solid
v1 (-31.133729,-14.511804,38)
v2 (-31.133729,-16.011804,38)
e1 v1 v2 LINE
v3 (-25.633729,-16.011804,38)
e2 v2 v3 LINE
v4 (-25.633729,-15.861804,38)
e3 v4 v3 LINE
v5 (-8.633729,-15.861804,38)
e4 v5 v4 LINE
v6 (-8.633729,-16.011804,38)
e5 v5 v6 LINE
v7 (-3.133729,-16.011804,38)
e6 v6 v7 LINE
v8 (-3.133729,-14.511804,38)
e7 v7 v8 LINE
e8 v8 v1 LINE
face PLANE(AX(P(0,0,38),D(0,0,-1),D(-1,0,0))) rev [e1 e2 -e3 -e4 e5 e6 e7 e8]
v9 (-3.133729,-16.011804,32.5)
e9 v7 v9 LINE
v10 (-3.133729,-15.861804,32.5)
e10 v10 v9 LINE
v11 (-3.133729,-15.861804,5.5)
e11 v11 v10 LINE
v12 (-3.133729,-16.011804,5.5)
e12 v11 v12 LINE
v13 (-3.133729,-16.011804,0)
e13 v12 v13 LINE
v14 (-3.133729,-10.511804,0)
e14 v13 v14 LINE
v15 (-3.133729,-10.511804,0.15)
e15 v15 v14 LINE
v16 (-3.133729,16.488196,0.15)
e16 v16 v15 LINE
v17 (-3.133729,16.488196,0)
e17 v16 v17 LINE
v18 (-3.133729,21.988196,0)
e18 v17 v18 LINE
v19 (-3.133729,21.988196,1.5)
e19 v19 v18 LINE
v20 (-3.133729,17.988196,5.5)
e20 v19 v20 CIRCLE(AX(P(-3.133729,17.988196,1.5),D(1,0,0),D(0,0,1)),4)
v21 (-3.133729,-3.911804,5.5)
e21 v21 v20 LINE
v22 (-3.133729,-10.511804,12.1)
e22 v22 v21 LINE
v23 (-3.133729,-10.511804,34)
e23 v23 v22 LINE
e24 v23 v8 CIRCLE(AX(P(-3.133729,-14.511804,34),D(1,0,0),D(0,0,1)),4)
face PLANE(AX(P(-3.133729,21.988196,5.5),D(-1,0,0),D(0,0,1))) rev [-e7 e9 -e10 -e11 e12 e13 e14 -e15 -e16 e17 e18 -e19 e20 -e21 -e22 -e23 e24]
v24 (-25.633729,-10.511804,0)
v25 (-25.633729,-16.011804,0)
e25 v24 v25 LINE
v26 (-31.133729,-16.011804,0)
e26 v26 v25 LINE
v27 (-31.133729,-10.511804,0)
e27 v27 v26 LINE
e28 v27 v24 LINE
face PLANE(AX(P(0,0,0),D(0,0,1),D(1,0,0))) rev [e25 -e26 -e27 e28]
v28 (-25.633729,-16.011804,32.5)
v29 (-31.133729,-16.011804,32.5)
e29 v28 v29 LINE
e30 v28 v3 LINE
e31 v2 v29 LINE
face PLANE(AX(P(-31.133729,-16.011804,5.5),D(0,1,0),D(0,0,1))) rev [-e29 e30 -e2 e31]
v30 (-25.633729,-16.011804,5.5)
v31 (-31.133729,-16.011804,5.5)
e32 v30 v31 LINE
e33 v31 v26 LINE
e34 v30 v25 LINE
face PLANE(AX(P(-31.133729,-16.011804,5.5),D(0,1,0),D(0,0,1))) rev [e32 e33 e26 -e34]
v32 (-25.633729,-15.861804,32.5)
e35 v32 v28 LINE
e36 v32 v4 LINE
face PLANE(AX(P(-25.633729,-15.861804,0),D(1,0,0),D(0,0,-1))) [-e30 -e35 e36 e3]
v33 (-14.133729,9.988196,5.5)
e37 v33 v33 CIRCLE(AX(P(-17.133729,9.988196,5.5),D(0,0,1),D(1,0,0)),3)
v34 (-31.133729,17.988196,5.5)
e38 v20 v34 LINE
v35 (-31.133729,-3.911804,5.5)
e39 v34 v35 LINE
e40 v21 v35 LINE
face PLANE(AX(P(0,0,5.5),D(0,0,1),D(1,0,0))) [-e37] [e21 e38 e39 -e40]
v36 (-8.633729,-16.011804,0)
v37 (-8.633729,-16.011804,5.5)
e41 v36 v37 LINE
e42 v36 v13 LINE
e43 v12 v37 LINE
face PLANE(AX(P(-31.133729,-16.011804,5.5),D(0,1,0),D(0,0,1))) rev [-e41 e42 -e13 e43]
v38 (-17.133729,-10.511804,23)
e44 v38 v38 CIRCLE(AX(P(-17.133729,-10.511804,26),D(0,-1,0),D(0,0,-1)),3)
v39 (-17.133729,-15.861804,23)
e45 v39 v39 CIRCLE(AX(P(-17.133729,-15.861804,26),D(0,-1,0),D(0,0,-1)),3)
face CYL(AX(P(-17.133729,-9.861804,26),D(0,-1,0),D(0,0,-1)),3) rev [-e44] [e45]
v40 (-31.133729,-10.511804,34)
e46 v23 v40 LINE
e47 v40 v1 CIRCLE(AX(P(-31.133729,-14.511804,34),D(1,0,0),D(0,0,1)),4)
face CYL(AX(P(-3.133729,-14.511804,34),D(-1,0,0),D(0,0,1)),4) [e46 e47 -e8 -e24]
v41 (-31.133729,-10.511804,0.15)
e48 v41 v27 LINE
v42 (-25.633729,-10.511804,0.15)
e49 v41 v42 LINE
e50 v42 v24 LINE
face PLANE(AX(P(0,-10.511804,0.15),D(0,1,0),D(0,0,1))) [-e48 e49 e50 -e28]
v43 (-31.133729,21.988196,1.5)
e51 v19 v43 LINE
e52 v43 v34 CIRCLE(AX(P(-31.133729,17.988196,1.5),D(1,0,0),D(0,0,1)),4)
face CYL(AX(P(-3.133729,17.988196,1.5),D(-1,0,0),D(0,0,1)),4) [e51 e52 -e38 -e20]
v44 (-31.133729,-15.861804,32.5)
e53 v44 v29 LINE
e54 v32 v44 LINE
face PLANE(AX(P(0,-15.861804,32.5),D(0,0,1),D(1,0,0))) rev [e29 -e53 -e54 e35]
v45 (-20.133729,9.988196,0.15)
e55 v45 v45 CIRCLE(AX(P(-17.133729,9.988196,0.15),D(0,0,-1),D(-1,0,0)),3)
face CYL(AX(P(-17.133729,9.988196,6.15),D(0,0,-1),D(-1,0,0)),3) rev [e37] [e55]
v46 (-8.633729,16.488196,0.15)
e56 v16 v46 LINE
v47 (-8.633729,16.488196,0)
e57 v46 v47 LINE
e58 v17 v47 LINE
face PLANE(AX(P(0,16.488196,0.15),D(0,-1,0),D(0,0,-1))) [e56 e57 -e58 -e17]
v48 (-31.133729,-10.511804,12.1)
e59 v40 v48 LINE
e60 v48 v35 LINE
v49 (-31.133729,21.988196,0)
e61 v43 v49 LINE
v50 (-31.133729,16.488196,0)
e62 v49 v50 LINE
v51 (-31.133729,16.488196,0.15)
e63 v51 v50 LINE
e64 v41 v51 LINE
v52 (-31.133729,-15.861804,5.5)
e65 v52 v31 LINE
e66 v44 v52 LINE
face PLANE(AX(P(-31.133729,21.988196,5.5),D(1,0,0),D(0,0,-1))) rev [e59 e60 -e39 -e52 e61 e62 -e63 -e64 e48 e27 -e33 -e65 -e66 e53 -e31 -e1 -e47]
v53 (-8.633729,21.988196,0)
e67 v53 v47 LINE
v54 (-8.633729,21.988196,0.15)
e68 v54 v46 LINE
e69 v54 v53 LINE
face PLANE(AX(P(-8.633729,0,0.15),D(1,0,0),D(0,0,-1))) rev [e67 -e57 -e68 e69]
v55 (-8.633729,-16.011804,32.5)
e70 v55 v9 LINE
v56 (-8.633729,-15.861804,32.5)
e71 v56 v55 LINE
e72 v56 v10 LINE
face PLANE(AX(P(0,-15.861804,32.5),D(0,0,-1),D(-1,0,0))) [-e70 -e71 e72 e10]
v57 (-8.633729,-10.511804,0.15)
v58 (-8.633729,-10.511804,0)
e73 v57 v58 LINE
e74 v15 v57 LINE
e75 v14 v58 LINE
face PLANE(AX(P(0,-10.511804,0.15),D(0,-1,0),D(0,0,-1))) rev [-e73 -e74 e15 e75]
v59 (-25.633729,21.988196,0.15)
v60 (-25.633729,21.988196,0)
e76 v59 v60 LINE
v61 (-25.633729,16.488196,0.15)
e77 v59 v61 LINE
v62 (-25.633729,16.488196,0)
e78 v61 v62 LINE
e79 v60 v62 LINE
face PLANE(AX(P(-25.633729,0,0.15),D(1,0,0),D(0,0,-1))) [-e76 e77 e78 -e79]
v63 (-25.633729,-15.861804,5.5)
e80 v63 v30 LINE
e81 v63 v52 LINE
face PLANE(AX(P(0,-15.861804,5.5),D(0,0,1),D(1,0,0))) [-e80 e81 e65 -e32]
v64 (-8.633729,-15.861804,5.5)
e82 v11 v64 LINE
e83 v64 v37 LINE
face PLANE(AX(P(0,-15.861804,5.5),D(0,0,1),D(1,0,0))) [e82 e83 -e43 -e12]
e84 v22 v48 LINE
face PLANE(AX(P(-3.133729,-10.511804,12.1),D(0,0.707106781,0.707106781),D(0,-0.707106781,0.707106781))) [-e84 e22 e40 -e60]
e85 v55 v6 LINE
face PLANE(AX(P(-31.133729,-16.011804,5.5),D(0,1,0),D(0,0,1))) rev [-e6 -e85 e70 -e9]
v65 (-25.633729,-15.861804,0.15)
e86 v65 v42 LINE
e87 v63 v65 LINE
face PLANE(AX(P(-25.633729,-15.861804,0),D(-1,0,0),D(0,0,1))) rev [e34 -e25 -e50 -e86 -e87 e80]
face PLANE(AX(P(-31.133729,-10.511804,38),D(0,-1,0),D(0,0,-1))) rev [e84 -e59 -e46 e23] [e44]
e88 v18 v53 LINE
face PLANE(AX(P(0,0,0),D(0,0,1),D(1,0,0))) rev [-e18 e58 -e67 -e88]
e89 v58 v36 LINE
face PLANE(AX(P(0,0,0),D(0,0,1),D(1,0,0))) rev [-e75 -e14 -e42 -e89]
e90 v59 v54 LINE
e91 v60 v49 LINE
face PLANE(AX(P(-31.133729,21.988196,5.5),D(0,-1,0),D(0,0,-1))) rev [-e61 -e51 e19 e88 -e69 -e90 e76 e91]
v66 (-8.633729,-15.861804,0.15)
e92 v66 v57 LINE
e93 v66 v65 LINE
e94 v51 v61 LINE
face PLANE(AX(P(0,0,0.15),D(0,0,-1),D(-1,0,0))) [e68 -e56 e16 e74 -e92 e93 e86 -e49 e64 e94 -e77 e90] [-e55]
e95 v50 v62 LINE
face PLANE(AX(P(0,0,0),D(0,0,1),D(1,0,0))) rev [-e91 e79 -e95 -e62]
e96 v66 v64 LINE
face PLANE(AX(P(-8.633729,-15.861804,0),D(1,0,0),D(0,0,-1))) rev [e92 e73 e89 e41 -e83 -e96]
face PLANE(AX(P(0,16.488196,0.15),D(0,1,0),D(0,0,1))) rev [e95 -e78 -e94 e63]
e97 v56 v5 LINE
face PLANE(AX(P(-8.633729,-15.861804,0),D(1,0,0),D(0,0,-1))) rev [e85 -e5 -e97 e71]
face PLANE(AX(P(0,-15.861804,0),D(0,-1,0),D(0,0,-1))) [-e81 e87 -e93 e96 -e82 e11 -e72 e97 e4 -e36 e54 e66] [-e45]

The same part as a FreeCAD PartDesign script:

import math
import FreeCAD as App
import Part
import Sketcher
from FreeCAD import Vector
Q = App.Units.Quantity

doc = App.newDocument("Part")
body = doc.addObject("PartDesign::Body", "Body")

# Sketch on XY plane
sketch1 = doc.addObject("Sketcher::SketchObject", "Sketch")
body.addObject(sketch1)
sketch1.AttachmentSupport = (doc.XY_Plane, [""])
sketch1.MapMode = "FlatFace"
sketch1.addGeometry(Part.LineSegment(Vector(-31.133729, 21.988196, 0), Vector(-31.133729, -16.011804, 0)), False)
sketch1.addGeometry(Part.LineSegment(Vector(-31.133729, -16.011804, 0), Vector(-3.133729, -16.011804, 0)), False)
sketch1.addGeometry(Part.LineSegment(Vector(-3.133729, -16.011804, 0), Vector(-3.133729, 21.988196, 0)), False)
sketch1.addGeometry(Part.LineSegment(Vector(-3.133729, 21.988196, 0), Vector(-31.133729, 21.988196, 0)), False)
sketch1.addConstraint(Sketcher.Constraint("Coincident", 0, 2, 1, 1))
sketch1.addConstraint(Sketcher.Constraint("Coincident", 1, 2, 2, 1))
sketch1.addConstraint(Sketcher.Constraint("Coincident", 2, 2, 3, 1))
sketch1.addConstraint(Sketcher.Constraint("Coincident", 3, 2, 0, 1))
sketch1.addConstraint(Sketcher.Constraint("Vertical", 0))
sketch1.addConstraint(Sketcher.Constraint("Horizontal", 1))
sketch1.addConstraint(Sketcher.Constraint("Vertical", 2))
sketch1.addConstraint(Sketcher.Constraint("Horizontal", 3))
sketch1.addConstraint(Sketcher.Constraint("DistanceX", 1, 1, 1, 2, Q("28 mm")))
sketch1.addConstraint(Sketcher.Constraint("DistanceY", 0, 2, 0, 1, Q("38 mm")))
sketch1.addConstraint(Sketcher.Constraint("DistanceX", 0, 2, -1, 1, Q("31.133729 mm")))
sketch1.addConstraint(Sketcher.Constraint("DistanceY", 0, 2, -1, 1, Q("16.011804 mm")))
pad1 = doc.addObject("PartDesign::Pad", "Pad")
body.addObject(pad1)
pad1.Profile = sketch1
pad1.Length = 5.5

# Sketch on XY plane
sketch2 = doc.addObject("Sketcher::SketchObject", "Sketch001")
body.addObject(sketch2)
sketch2.AttachmentSupport = (doc.XY_Plane, [""])
sketch2.MapMode = "FlatFace"
sketch2.AttachmentOffset = App.Placement(Vector(0, 0, 5.5), App.Rotation())
sketch2.addGeometry(Part.LineSegment(Vector(-31.133729, -10.511804, 0), Vector(-31.133729, -16.011804, 0)), False)
sketch2.addGeometry(Part.LineSegment(Vector(-31.133729, -16.011804, 0), Vector(-3.133729, -16.011804, 0)), False)
sketch2.addGeometry(Part.LineSegment(Vector(-3.133729, -16.011804, 0), Vector(-3.133729, -10.511804, 0)), False)
sketch2.addGeometry(Part.LineSegment(Vector(-3.133729, -10.511804, 0), Vector(-31.133729, -10.511804, 0)), False)
sketch2.addConstraint(Sketcher.Constraint("Coincident", 0, 2, 1, 1))
sketch2.addConstraint(Sketcher.Constraint("Coincident", 1, 2, 2, 1))
sketch2.addConstraint(Sketcher.Constraint("Coincident", 2, 2, 3, 1))
sketch2.addConstraint(Sketcher.Constraint("Coincident", 3, 2, 0, 1))
sketch2.addConstraint(Sketcher.Constraint("Vertical", 0))
sketch2.addConstraint(Sketcher.Constraint("Horizontal", 1))
sketch2.addConstraint(Sketcher.Constraint("Vertical", 2))
sketch2.addConstraint(Sketcher.Constraint("Horizontal", 3))
sketch2.addConstraint(Sketcher.Constraint("DistanceX", 1, 1, 1, 2, Q("28 mm")))
sketch2.addConstraint(Sketcher.Constraint("DistanceY", 0, 2, 0, 1, Q("5.5 mm")))
sketch2.addConstraint(Sketcher.Constraint("DistanceX", 0, 2, -1, 1, Q("31.133729 mm")))
sketch2.addConstraint(Sketcher.Constraint("DistanceY", 0, 2, -1, 1, Q("16.011804 mm")))
pad2 = doc.addObject("PartDesign::Pad", "Pad001")
body.addObject(pad2)
pad2.Profile = sketch2
pad2.Length = 32.5

# Sketch on YZ plane
sketch3 = doc.addObject("Sketcher::SketchObject", "Sketch002")
body.addObject(sketch3)
sketch3.AttachmentSupport = (doc.YZ_Plane, [""])
sketch3.MapMode = "FlatFace"
sketch3.AttachmentOffset = App.Placement(Vector(0, 0, -31.133729), App.Rotation())
sketch3.addGeometry(Part.LineSegment(Vector(21.988196, 5.5, 0), Vector(21.988196, 1.5, 0)), False)
sketch3.addGeometry(Part.ArcOfCircle(Part.Circle(Vector(17.988196, 1.5, 0), Vector(0, 0, 1), 4), math.radians(0), math.radians(90)), False)
sketch3.addGeometry(Part.LineSegment(Vector(17.988196, 5.5, 0), Vector(21.988196, 5.5, 0)), False)
sketch3.addGeometry(Part.LineSegment(Vector(-10.511804, 38, 0), Vector(-10.511804, 34, 0)), False)
sketch3.addGeometry(Part.ArcOfCircle(Part.Circle(Vector(-14.511804, 34, 0), Vector(0, 0, 1), 4), math.radians(0), math.radians(90)), False)
sketch3.addGeometry(Part.LineSegment(Vector(-14.511804, 38, 0), Vector(-10.511804, 38, 0)), False)
sketch3.addConstraint(Sketcher.Constraint("Tangent", 0, 2, 1, 1))
sketch3.addConstraint(Sketcher.Constraint("Tangent", 1, 2, 2, 1))
sketch3.addConstraint(Sketcher.Constraint("Coincident", 2, 2, 0, 1))
sketch3.addConstraint(Sketcher.Constraint("Tangent", 3, 2, 4, 1))
sketch3.addConstraint(Sketcher.Constraint("Tangent", 4, 2, 5, 1))
sketch3.addConstraint(Sketcher.Constraint("Coincident", 5, 2, 3, 1))
sketch3.addConstraint(Sketcher.Constraint("Vertical", 0))
sketch3.addConstraint(Sketcher.Constraint("Horizontal", 2))
sketch3.addConstraint(Sketcher.Constraint("Vertical", 3))
sketch3.addConstraint(Sketcher.Constraint("Horizontal", 5))
sketch3.addConstraint(Sketcher.Constraint("Equal", 1, 4))
sketch3.addConstraint(Sketcher.Constraint("Radius", 1, Q("4 mm")))
sketch3.addConstraint(Sketcher.Constraint("DistanceY", -1, 1, 4, 3, Q("34 mm")))
sketch3.addConstraint(Sketcher.Constraint("DistanceY", -1, 1, 1, 3, Q("1.5 mm")))
sketch3.addConstraint(Sketcher.Constraint("DistanceX", 4, 3, 1, 3, Q("32.5 mm")))
sketch3.addConstraint(Sketcher.Constraint("DistanceX", -1, 1, 1, 3, Q("17.988196 mm")))
pocket1 = doc.addObject("PartDesign::Pocket", "Pocket")
body.addObject(pocket1)
pocket1.Profile = sketch3
pocket1.Length = 28
pocket1.Reversed = True

# Sketch on YZ plane
sketch4 = doc.addObject("Sketcher::SketchObject", "Sketch003")
body.addObject(sketch4)
sketch4.AttachmentSupport = (doc.YZ_Plane, [""])
sketch4.MapMode = "FlatFace"
sketch4.AttachmentOffset = App.Placement(Vector(0, 0, -31.133729), App.Rotation())
sketch4.addGeometry(Part.LineSegment(Vector(-10.511804, 5.5, 0), Vector(-10.511804, 12.1, 0)), False)
sketch4.addGeometry(Part.LineSegment(Vector(-10.511804, 12.1, 0), Vector(-3.911804, 5.5, 0)), False)
sketch4.addGeometry(Part.LineSegment(Vector(-3.911804, 5.5, 0), Vector(-10.511804, 5.5, 0)), False)
sketch4.addConstraint(Sketcher.Constraint("Coincident", 0, 2, 1, 1))
sketch4.addConstraint(Sketcher.Constraint("Coincident", 1, 2, 2, 1))
sketch4.addConstraint(Sketcher.Constraint("Coincident", 2, 2, 0, 1))
sketch4.addConstraint(Sketcher.Constraint("Vertical", 0))
sketch4.addConstraint(Sketcher.Constraint("Horizontal", 2))
sketch4.addConstraint(Sketcher.Constraint("Equal", 2, 0))
sketch4.addConstraint(Sketcher.Constraint("DistanceX", 2, 2, 2, 1, Q("6.6 mm")))
sketch4.addConstraint(Sketcher.Constraint("DistanceY", -1, 1, 0, 2, Q("12.1 mm")))
sketch4.addConstraint(Sketcher.Constraint("DistanceX", 0, 2, -1, 1, Q("10.511804 mm")))
pad3 = doc.addObject("PartDesign::Pad", "Pad002")
body.addObject(pad3)
pad3.Profile = sketch4
pad3.Length = 28

# Sketch on XZ plane
sketch5 = doc.addObject("Sketcher::SketchObject", "Sketch004")
body.addObject(sketch5)
sketch5.AttachmentSupport = (doc.XZ_Plane, [""])
sketch5.MapMode = "FlatFace"
sketch5.AttachmentOffset = App.Placement(Vector(0, 0, 16.011804), App.Rotation())
sketch5.addGeometry(Part.LineSegment(Vector(-25.633729, 5.5, 0), Vector(-25.633729, 0, 0)), False)
sketch5.addGeometry(Part.LineSegment(Vector(-25.633729, 0, 0), Vector(-8.633729, 0, 0)), False)
sketch5.addGeometry(Part.LineSegment(Vector(-8.633729, 0, 0), Vector(-8.633729, 5.5, 0)), False)
sketch5.addGeometry(Part.LineSegment(Vector(-8.633729, 5.5, 0), Vector(-3.133729, 5.5, 0)), False)
sketch5.addGeometry(Part.LineSegment(Vector(-3.133729, 5.5, 0), Vector(-3.133729, 32.5, 0)), False)
sketch5.addGeometry(Part.LineSegment(Vector(-3.133729, 32.5, 0), Vector(-8.633729, 32.5, 0)), False)
sketch5.addGeometry(Part.LineSegment(Vector(-8.633729, 32.5, 0), Vector(-8.633729, 38, 0)), False)
sketch5.addGeometry(Part.LineSegment(Vector(-8.633729, 38, 0), Vector(-25.633729, 38, 0)), False)
sketch5.addGeometry(Part.LineSegment(Vector(-25.633729, 38, 0), Vector(-25.633729, 32.5, 0)), False)
sketch5.addGeometry(Part.LineSegment(Vector(-25.633729, 32.5, 0), Vector(-31.133729, 32.5, 0)), False)
sketch5.addGeometry(Part.LineSegment(Vector(-31.133729, 32.5, 0), Vector(-31.133729, 5.5, 0)), False)
sketch5.addGeometry(Part.LineSegment(Vector(-31.133729, 5.5, 0), Vector(-25.633729, 5.5, 0)), False)
sketch5.addConstraint(Sketcher.Constraint("Coincident", 0, 2, 1, 1))
sketch5.addConstraint(Sketcher.Constraint("Coincident", 1, 2, 2, 1))
sketch5.addConstraint(Sketcher.Constraint("Coincident", 2, 2, 3, 1))
sketch5.addConstraint(Sketcher.Constraint("Coincident", 3, 2, 4, 1))
sketch5.addConstraint(Sketcher.Constraint("Coincident", 4, 2, 5, 1))
sketch5.addConstraint(Sketcher.Constraint("Coincident", 5, 2, 6, 1))
sketch5.addConstraint(Sketcher.Constraint("Coincident", 6, 2, 7, 1))
sketch5.addConstraint(Sketcher.Constraint("Coincident", 7, 2, 8, 1))
sketch5.addConstraint(Sketcher.Constraint("Coincident", 8, 2, 9, 1))
sketch5.addConstraint(Sketcher.Constraint("Coincident", 9, 2, 10, 1))
sketch5.addConstraint(Sketcher.Constraint("Coincident", 10, 2, 11, 1))
sketch5.addConstraint(Sketcher.Constraint("Coincident", 11, 2, 0, 1))
sketch5.addConstraint(Sketcher.Constraint("Vertical", 0))
sketch5.addConstraint(Sketcher.Constraint("Horizontal", 1))
sketch5.addConstraint(Sketcher.Constraint("Vertical", 2))
sketch5.addConstraint(Sketcher.Constraint("Horizontal", 3))
sketch5.addConstraint(Sketcher.Constraint("Vertical", 4))
sketch5.addConstraint(Sketcher.Constraint("Horizontal", 5))
sketch5.addConstraint(Sketcher.Constraint("Vertical", 6))
sketch5.addConstraint(Sketcher.Constraint("Horizontal", 7))
sketch5.addConstraint(Sketcher.Constraint("Vertical", 8))
sketch5.addConstraint(Sketcher.Constraint("Horizontal", 9))
sketch5.addConstraint(Sketcher.Constraint("Vertical", 10))
sketch5.addConstraint(Sketcher.Constraint("Horizontal", 11))
sketch5.addConstraint(Sketcher.Constraint("PointOnObject", 0, 2, -1))
sketch5.addConstraint(Sketcher.Constraint("Horizontal", 5, 2, 8, 2))
sketch5.addConstraint(Sketcher.Constraint("Horizontal", 3, 2, 10, 2))
sketch5.addConstraint(Sketcher.Constraint("Vertical", 2, 2, 5, 2))
sketch5.addConstraint(Sketcher.Constraint("Vertical", 0, 2, 7, 2))
sketch5.addConstraint(Sketcher.Constraint("Equal", 5, 9))
sketch5.addConstraint(Sketcher.Constraint("Equal", 11, 0))
sketch5.addConstraint(Sketcher.Constraint("Equal", 2, 6))
sketch5.addConstraint(Sketcher.Constraint("DistanceX", 1, 1, 1, 2, Q("17 mm")))
sketch5.addConstraint(Sketcher.Constraint("DistanceY", 4, 1, 4, 2, Q("27 mm")))
sketch5.addConstraint(Sketcher.Constraint("DistanceX", 3, 1, 3, 2, Q("5.5 mm")))
sketch5.addConstraint(Sketcher.Constraint("DistanceX", 0, 2, -1, 1, Q("25.633729 mm")))
pocket2 = doc.addObject("PartDesign::Pocket", "Pocket001")
body.addObject(pocket2)
pocket2.Profile = sketch5
pocket2.Length = 0.15

# Sketch on XY plane
sketch6 = doc.addObject("Sketcher::SketchObject", "Sketch005")
body.addObject(sketch6)
sketch6.AttachmentSupport = (doc.XY_Plane, [""])
sketch6.MapMode = "FlatFace"
sketch6.addGeometry(Part.LineSegment(Vector(-8.633729, -10.511804, 0), Vector(-8.633729, -15.861804, 0)), False)
sketch6.addGeometry(Part.LineSegment(Vector(-8.633729, -15.861804, 0), Vector(-25.633729, -15.861804, 0)), False)
sketch6.addGeometry(Part.LineSegment(Vector(-25.633729, -15.861804, 0), Vector(-25.633729, -10.511804, 0)), False)
sketch6.addGeometry(Part.LineSegment(Vector(-25.633729, -10.511804, 0), Vector(-31.133729, -10.511804, 0)), False)
sketch6.addGeometry(Part.LineSegment(Vector(-31.133729, -10.511804, 0), Vector(-31.133729, 16.488196, 0)), False)
sketch6.addGeometry(Part.LineSegment(Vector(-31.133729, 16.488196, 0), Vector(-25.633729, 16.488196, 0)), False)
sketch6.addGeometry(Part.LineSegment(Vector(-25.633729, 16.488196, 0), Vector(-25.633729, 21.988196, 0)), False)
sketch6.addGeometry(Part.LineSegment(Vector(-25.633729, 21.988196, 0), Vector(-8.633729, 21.988196, 0)), False)
sketch6.addGeometry(Part.LineSegment(Vector(-8.633729, 21.988196, 0), Vector(-8.633729, 16.488196, 0)), False)
sketch6.addGeometry(Part.LineSegment(Vector(-8.633729, 16.488196, 0), Vector(-3.133729, 16.488196, 0)), False)
sketch6.addGeometry(Part.LineSegment(Vector(-3.133729, 16.488196, 0), Vector(-3.133729, -10.511804, 0)), False)
sketch6.addGeometry(Part.LineSegment(Vector(-3.133729, -10.511804, 0), Vector(-8.633729, -10.511804, 0)), False)
sketch6.addConstraint(Sketcher.Constraint("Coincident", 0, 2, 1, 1))
sketch6.addConstraint(Sketcher.Constraint("Coincident", 1, 2, 2, 1))
sketch6.addConstraint(Sketcher.Constraint("Coincident", 2, 2, 3, 1))
sketch6.addConstraint(Sketcher.Constraint("Coincident", 3, 2, 4, 1))
sketch6.addConstraint(Sketcher.Constraint("Coincident", 4, 2, 5, 1))
sketch6.addConstraint(Sketcher.Constraint("Coincident", 5, 2, 6, 1))
sketch6.addConstraint(Sketcher.Constraint("Coincident", 6, 2, 7, 1))
sketch6.addConstraint(Sketcher.Constraint("Coincident", 7, 2, 8, 1))
sketch6.addConstraint(Sketcher.Constraint("Coincident", 8, 2, 9, 1))
sketch6.addConstraint(Sketcher.Constraint("Coincident", 9, 2, 10, 1))
sketch6.addConstraint(Sketcher.Constraint("Coincident", 10, 2, 11, 1))
sketch6.addConstraint(Sketcher.Constraint("Coincident", 11, 2, 0, 1))
sketch6.addConstraint(Sketcher.Constraint("Vertical", 0))
sketch6.addConstraint(Sketcher.Constraint("Horizontal", 1))
sketch6.addConstraint(Sketcher.Constraint("Vertical", 2))
sketch6.addConstraint(Sketcher.Constraint("Horizontal", 3))
sketch6.addConstraint(Sketcher.Constraint("Vertical", 4))
sketch6.addConstraint(Sketcher.Constraint("Horizontal", 5))
sketch6.addConstraint(Sketcher.Constraint("Vertical", 6))
sketch6.addConstraint(Sketcher.Constraint("Horizontal", 7))
sketch6.addConstraint(Sketcher.Constraint("Vertical", 8))
sketch6.addConstraint(Sketcher.Constraint("Horizontal", 9))
sketch6.addConstraint(Sketcher.Constraint("Vertical", 10))
sketch6.addConstraint(Sketcher.Constraint("Horizontal", 11))
sketch6.addConstraint(Sketcher.Constraint("Horizontal", 5, 2, 8, 2))
sketch6.addConstraint(Sketcher.Constraint("Horizontal", 3, 2, 10, 2))
sketch6.addConstraint(Sketcher.Constraint("Vertical", 2, 2, 5, 2))
sketch6.addConstraint(Sketcher.Constraint("Vertical", 0, 2, 7, 2))
sketch6.addConstraint(Sketcher.Constraint("Equal", 5, 9))
sketch6.addConstraint(Sketcher.Constraint("Equal", 11, 6))
sketch6.addConstraint(Sketcher.Constraint("DistanceX", 1, 2, 1, 1, Q("17 mm")))
sketch6.addConstraint(Sketcher.Constraint("DistanceY", 4, 1, 4, 2, Q("27 mm")))
sketch6.addConstraint(Sketcher.Constraint("DistanceX", 3, 2, 3, 1, Q("5.5 mm")))
sketch6.addConstraint(Sketcher.Constraint("DistanceY", 0, 2, 0, 1, Q("5.35 mm")))
sketch6.addConstraint(Sketcher.Constraint("DistanceX", 0, 2, -1, 1, Q("8.633729 mm")))
sketch6.addConstraint(Sketcher.Constraint("DistanceY", 0, 2, -1, 1, Q("15.861804 mm")))
pocket3 = doc.addObject("PartDesign::Pocket", "Pocket002")
body.addObject(pocket3)
pocket3.Profile = sketch6
pocket3.Length = 0.15
pocket3.Reversed = True

# Sketch on XZ plane
sketch7 = doc.addObject("Sketcher::SketchObject", "Sketch006")
body.addObject(sketch7)
sketch7.AttachmentSupport = (doc.XZ_Plane, [""])
sketch7.MapMode = "FlatFace"
sketch7.AttachmentOffset = App.Placement(Vector(0, 0, 15.861804), App.Rotation())
sketch7.addGeometry(Part.Circle(Vector(-17.133729, 26, 0), Vector(0, 0, 1), 3), False)
sketch7.addConstraint(Sketcher.Constraint("Diameter", 0, Q("6 mm")))
sketch7.addConstraint(Sketcher.Constraint("DistanceY", -1, 1, 0, 3, Q("26 mm")))
sketch7.addConstraint(Sketcher.Constraint("DistanceX", 0, 3, -1, 1, Q("17.133729 mm")))
pocket4 = doc.addObject("PartDesign::Pocket", "Pocket003")
body.addObject(pocket4)
pocket4.Profile = sketch7
pocket4.Length = 6

# Sketch on XY plane
sketch8 = doc.addObject("Sketcher::SketchObject", "Sketch007")
body.addObject(sketch8)
sketch8.AttachmentSupport = (doc.XY_Plane, [""])
sketch8.MapMode = "FlatFace"
sketch8.AttachmentOffset = App.Placement(Vector(0, 0, 0.15), App.Rotation())
sketch8.addGeometry(Part.Circle(Vector(-17.133729, 9.988196, 0), Vector(0, 0, 1), 3), False)
sketch8.addConstraint(Sketcher.Constraint("Diameter", 0, Q("6 mm")))
sketch8.addConstraint(Sketcher.Constraint("DistanceX", 0, 3, -1, 1, Q("17.133729 mm")))
sketch8.addConstraint(Sketcher.Constraint("DistanceY", -1, 1, 0, 3, Q("9.988196 mm")))
pocket5 = doc.addObject("PartDesign::Pocket", "Pocket004")
body.addObject(pocket5)
pocket5.Profile = sketch8
pocket5.Length = 6
pocket5.Reversed = True

doc.recompute()
